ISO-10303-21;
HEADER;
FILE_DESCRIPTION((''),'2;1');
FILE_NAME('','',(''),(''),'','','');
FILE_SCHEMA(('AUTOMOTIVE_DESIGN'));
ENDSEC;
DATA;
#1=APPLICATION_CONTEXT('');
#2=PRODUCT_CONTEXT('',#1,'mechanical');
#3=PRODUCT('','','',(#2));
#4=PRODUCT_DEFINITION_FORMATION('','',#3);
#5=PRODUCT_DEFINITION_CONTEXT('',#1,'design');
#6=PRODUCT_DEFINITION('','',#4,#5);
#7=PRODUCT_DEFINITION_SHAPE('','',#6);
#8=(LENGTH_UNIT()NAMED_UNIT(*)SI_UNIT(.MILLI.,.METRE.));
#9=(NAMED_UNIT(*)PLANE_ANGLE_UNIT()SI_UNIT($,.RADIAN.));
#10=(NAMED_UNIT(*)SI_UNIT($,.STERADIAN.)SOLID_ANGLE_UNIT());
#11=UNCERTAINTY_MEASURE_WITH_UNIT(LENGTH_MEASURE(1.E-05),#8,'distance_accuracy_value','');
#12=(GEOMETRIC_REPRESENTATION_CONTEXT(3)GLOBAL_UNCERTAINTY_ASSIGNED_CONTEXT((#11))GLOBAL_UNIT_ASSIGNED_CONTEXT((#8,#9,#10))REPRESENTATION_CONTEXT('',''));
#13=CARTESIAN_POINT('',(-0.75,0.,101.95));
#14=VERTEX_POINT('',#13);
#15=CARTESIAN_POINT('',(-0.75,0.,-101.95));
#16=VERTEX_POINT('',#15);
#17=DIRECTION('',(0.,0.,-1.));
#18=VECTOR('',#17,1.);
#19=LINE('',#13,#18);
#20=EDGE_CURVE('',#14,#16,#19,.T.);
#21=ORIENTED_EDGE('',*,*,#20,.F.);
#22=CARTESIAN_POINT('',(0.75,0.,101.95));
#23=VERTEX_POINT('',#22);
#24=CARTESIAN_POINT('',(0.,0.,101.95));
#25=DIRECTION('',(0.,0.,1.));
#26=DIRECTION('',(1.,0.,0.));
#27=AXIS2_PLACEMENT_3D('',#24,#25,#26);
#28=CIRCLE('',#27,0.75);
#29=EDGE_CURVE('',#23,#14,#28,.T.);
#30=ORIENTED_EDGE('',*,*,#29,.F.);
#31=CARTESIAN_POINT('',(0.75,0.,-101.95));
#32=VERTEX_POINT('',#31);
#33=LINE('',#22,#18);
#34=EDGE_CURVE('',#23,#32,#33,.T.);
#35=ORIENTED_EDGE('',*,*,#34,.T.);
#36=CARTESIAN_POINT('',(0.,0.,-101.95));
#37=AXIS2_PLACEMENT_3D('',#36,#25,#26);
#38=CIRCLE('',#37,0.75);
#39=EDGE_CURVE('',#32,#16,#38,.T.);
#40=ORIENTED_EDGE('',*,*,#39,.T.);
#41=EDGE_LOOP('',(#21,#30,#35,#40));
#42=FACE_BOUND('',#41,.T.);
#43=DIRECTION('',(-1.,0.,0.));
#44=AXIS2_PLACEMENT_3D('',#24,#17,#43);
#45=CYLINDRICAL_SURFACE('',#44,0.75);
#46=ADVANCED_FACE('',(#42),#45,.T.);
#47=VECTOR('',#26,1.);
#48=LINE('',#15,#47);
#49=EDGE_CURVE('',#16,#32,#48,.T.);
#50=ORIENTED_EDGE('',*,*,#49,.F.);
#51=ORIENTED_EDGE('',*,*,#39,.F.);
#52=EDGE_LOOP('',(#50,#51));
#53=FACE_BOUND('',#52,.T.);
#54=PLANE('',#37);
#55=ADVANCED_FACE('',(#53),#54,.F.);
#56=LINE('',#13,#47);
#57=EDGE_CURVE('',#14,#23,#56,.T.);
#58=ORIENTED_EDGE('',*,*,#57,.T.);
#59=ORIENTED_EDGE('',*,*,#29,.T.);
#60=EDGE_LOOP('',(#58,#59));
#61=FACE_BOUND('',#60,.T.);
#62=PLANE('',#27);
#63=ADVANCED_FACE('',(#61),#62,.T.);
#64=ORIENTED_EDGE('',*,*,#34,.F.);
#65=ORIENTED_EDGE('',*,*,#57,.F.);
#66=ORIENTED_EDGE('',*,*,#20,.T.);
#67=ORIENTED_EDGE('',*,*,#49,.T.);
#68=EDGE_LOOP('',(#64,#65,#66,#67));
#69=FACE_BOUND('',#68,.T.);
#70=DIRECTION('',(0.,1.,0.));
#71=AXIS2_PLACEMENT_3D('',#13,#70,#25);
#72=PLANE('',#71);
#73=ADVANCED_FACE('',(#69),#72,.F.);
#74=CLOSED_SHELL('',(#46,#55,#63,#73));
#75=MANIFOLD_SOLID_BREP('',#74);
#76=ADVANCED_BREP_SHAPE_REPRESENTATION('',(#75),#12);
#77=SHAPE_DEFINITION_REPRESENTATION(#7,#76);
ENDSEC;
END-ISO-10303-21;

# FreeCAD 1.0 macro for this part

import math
import FreeCAD as App
import Part
import Sketcher

doc = App.newDocument("Part")
body = doc.addObject("PartDesign::Body", "Body")

# Sketch on XY plane
sketch1 = body.newObject("Sketcher::SketchObject", "Sketch")
sketch1.AttachmentSupport = (doc.getObject("XY_Plane"), [""])
sketch1.MapMode = "FlatFace"
sketch1.addGeometry([
    Part.LineSegment(App.Vector(-0.8, 0, 0), App.Vector(0.8, 0, 0)),
    Part.ArcOfCircle(Part.Circle(App.Vector(0, 0, 0), App.Vector(0, 0, 1), 0.8), math.radians(0), math.radians(180)),
], False)
sketch1.addConstraint([
    Sketcher.Constraint("Coincident", 0, 1, 1, 2),
    Sketcher.Constraint("Coincident", 1, 1, 0, 2),
    Sketcher.Constraint("Horizontal", 0),
    Sketcher.Constraint("Coincident", 1, 3, -1, 1),
    Sketcher.Constraint("PointOnObject", 0, 1, -1),
    Sketcher.Constraint("Radius", 1, 0.75),
])
pad1 = body.newObject("PartDesign::Pad", "Pad")
pad1.Profile = sketch1
pad1.Length = 203.9
pad1.Midplane = True

doc.recompute()
